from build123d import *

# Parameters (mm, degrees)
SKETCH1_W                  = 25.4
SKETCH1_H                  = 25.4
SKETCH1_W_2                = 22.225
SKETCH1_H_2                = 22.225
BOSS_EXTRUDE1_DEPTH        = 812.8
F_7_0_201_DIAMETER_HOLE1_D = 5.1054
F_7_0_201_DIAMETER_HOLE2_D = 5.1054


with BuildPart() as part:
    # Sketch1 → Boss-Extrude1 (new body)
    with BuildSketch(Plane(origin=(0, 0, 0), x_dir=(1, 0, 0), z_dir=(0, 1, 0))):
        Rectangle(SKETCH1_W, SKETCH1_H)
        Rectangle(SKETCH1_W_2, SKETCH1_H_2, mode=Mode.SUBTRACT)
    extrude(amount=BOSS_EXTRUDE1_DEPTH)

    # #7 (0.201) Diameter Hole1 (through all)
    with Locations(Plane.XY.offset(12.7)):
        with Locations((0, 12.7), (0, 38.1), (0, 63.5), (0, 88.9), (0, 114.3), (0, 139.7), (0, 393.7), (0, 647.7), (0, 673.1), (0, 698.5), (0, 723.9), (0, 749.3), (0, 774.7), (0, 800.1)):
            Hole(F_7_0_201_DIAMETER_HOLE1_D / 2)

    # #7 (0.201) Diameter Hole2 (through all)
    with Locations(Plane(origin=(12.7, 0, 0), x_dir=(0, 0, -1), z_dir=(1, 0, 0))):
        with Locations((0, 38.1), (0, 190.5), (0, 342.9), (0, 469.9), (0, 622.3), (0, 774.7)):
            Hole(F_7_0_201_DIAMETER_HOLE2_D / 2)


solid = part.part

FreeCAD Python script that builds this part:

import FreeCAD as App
import Part
import Sketcher
from FreeCAD import Vector
Q = App.Units.Quantity


def add_polygon(sketch, points):
    """Adds a closed chain of lines whose ends are joined by coincident constraints."""
    first, n = sketch.GeometryCount, len(points)
    for a, b in zip(points, points[1:] + points[:1]):
        sketch.addGeometry(Part.LineSegment(App.Vector(*a, 0), App.Vector(*b, 0)), False)
    for i in range(n):
        sketch.addConstraint(Sketcher.Constraint("Coincident", first + i, 2, first + (i + 1) % n, 1))

doc = App.newDocument("Part")
params = doc.addObject("Spreadsheet::Sheet", "Params")
for row, (alias, value) in enumerate([
    ("sketch1_width", "1 in"),
    ("sketch1_width2", "0.875 in"),
    ("pad1_length", "32 in"),
    ("sketch2_diameter", "0.201 in"),
    ("hole_diameter", "0.201 in"),
    ("sketch3_diameter", "0.201 in"),
    ("hole2_diameter", "0.201 in"),
], start=1):
    params.set(f"A{row}", alias)
    params.set(f"B{row}", "=" + value)
    params.setAlias(f"B{row}", alias)

body = doc.addObject("PartDesign::Body", "Body")

sketch1 = body.newObject("Sketcher::SketchObject", "Sketch")
sketch1.AttachmentSupport = (doc.getObject("XZ_Plane"), [""])
sketch1.MapMode = "FlatFace"
add_polygon(sketch1, [(-13, -13), (-13, 13), (13, 13), (13, -13)])
add_polygon(sketch1, [(11, 11), (-11, 11), (-11, -11), (11, -11)])
sketch1.addConstraint([
    Sketcher.Constraint("Vertical", 0),
    Sketcher.Constraint("Horizontal", 1),
    Sketcher.Constraint("Vertical", 2),
    Sketcher.Constraint("Horizontal", 3),
    Sketcher.Constraint("Horizontal", 4),
    Sketcher.Constraint("Vertical", 5),
    Sketcher.Constraint("Horizontal", 6),
    Sketcher.Constraint("Vertical", 7),
    Sketcher.Constraint("Symmetric", 0, 2, 2, 2, -1, 1),
    Sketcher.Constraint("Symmetric", 4, 2, 6, 2, -1, 1),
    Sketcher.Constraint("Equal", 3, 0),
    Sketcher.Constraint("Equal", 6, 5),
    Sketcher.Constraint("DistanceX", 1, 1, 1, 2, Q("1 in")),
    Sketcher.Constraint("DistanceX", 4, 2, 4, 1, Q("0.875 in")),
])
sketch1.setExpression("Constraints[20]", "Params.sketch1_width")
sketch1.setExpression("Constraints[21]", "Params.sketch1_width2")
pad1 = body.newObject("PartDesign::Pad", "Pad")
pad1.Profile = sketch1
pad1.setExpression("Length", "Params.pad1_length")
pad1.Reversed = True

sketch2 = body.newObject("Sketcher::SketchObject", "Sketch001")
sketch2.AttachmentSupport = (doc.getObject("XY_Plane"), [""])
sketch2.MapMode = "FlatFace"
sketch2.AttachmentOffset = App.Placement(Vector(0, 0, 0.5 * 25.4), App.Rotation())
sketch2.addGeometry([
    Part.Circle(Vector(0, 12.7, 0), Vector(0, 0, 1), 2.6),
    Part.Circle(Vector(0, 38.1, 0), Vector(0, 0, 1), 2.6),
    Part.Circle(Vector(0, 63.5, 0), Vector(0, 0, 1), 2.6),
    Part.Circle(Vector(0, 88.9, 0), Vector(0, 0, 1), 2.6),
    Part.Circle(Vector(0, 114.3, 0), Vector(0, 0, 1), 2.6),
    Part.Circle(Vector(0, 139.7, 0), Vector(0, 0, 1), 2.6),
    Part.Circle(Vector(0, 393.7, 0), Vector(0, 0, 1), 2.6),
    Part.Circle(Vector(0, 647.7, 0), Vector(0, 0, 1), 2.6),
    Part.Circle(Vector(0, 673.1, 0), Vector(0, 0, 1), 2.6),
    Part.Circle(Vector(0, 698.5, 0), Vector(0, 0, 1), 2.6),
    Part.Circle(Vector(0, 723.9, 0), Vector(0, 0, 1), 2.6),
    Part.Circle(Vector(0, 749.3, 0), Vector(0, 0, 1), 2.6),
    Part.Circle(Vector(0, 774.7, 0), Vector(0, 0, 1), 2.6),
    Part.Circle(Vector(0, 800.1, 0), Vector(0, 0, 1), 2.6),
], False)
sketch2.addConstraint([
    Sketcher.Constraint("Equal", 0, 1),
    Sketcher.Constraint("Equal", 1, 2),
    Sketcher.Constraint("Equal", 2, 3),
    Sketcher.Constraint("Equal", 3, 4),
    Sketcher.Constraint("Equal", 4, 5),
    Sketcher.Constraint("Equal", 5, 6),
    Sketcher.Constraint("Equal", 6, 7),
    Sketcher.Constraint("Equal", 7, 8),
    Sketcher.Constraint("Equal", 8, 9),
    Sketcher.Constraint("Equal", 9, 10),
    Sketcher.Constraint("Equal", 10, 11),
    Sketcher.Constraint("Equal", 11, 12),
    Sketcher.Constraint("Equal", 12, 13),
    Sketcher.Constraint("PointOnObject", 0, 3, -2),
    Sketcher.Constraint("PointOnObject", 1, 3, -2),
    Sketcher.Constraint("PointOnObject", 2, 3, -2),
    Sketcher.Constraint("PointOnObject", 3, 3, -2),
    Sketcher.Constraint("PointOnObject", 4, 3, -2),
    Sketcher.Constraint("PointOnObject", 5, 3, -2),
    Sketcher.Constraint("PointOnObject", 6, 3, -2),
    Sketcher.Constraint("PointOnObject", 7, 3, -2),
    Sketcher.Constraint("PointOnObject", 8, 3, -2),
    Sketcher.Constraint("PointOnObject", 9, 3, -2),
    Sketcher.Constraint("PointOnObject", 10, 3, -2),
    Sketcher.Constraint("PointOnObject", 11, 3, -2),
    Sketcher.Constraint("PointOnObject", 12, 3, -2),
    Sketcher.Constraint("PointOnObject", 13, 3, -2),
    Sketcher.Constraint("Diameter", 0, Q("0.201 in")),
    Sketcher.Constraint("DistanceY", 0, 3, 1, 3, Q("1 in")),
    Sketcher.Constraint("DistanceY", 1, 3, 2, 3, Q("1 in")),
    Sketcher.Constraint("DistanceY", 2, 3, 3, 3, Q("1 in")),
    Sketcher.Constraint("DistanceY", 3, 3, 4, 3, Q("1 in")),
    Sketcher.Constraint("DistanceY", 4, 3, 5, 3, Q("1 in")),
    Sketcher.Constraint("DistanceY", 5, 3, 6, 3, Q("10 in")),
    Sketcher.Constraint("DistanceY", 6, 3, 7, 3, Q("10 in")),
    Sketcher.Constraint("DistanceY", 7, 3, 8, 3, Q("1 in")),
    Sketcher.Constraint("DistanceY", 8, 3, 9, 3, Q("1 in")),
    Sketcher.Constraint("DistanceY", 9, 3, 10, 3, Q("1 in")),
    Sketcher.Constraint("DistanceY", 10, 3, 11, 3, Q("1 in")),
    Sketcher.Constraint("DistanceY", 11, 3, 12, 3, Q("1 in")),
    Sketcher.Constraint("DistanceY", 12, 3, 13, 3, Q("1 in")),
    Sketcher.Constraint("DistanceY", -1, 1, 0, 3, Q("0.5 in")),
])
sketch2.setExpression("Constraints[27]", "Params.sketch2_diameter")
doc.recompute()
hole = body.newObject("PartDesign::Hole", "Hole")
hole.Profile = sketch2
hole.ThreadType = "None"
hole.setExpression("Diameter", "Params.hole_diameter")
hole.DepthType = "ThroughAll"

sketch3 = body.newObject("Sketcher::SketchObject", "Sketch002")
sketch3.AttachmentSupport = (doc.getObject("YZ_Plane"), [""])
sketch3.MapMode = "FlatFace"
sketch3.AttachmentOffset = App.Placement(Vector(0, 0, 0.5 * 25.4), App.Rotation())
sketch3.addGeometry([
    Part.Circle(Vector(38.1, 0, 0), Vector(0, 0, 1), 2.6),
    Part.Circle(Vector(190.5, 0, 0), Vector(0, 0, 1), 2.6),
    Part.Circle(Vector(342.9, 0, 0), Vector(0, 0, 1), 2.6),
    Part.Circle(Vector(469.9, 0, 0), Vector(0, 0, 1), 2.6),
    Part.Circle(Vector(622.3, 0, 0), Vector(0, 0, 1), 2.6),
    Part.Circle(Vector(774.7, 0, 0), Vector(0, 0, 1), 2.6),
], False)
sketch3.addConstraint([
    Sketcher.Constraint("Equal", 0, 1),
    Sketcher.Constraint("Equal", 1, 2),
    Sketcher.Constraint("Equal", 2, 3),
    Sketcher.Constraint("Equal", 3, 4),
    Sketcher.Constraint("Equal", 4, 5),
    Sketcher.Constraint("PointOnObject", 0, 3, -1),
    Sketcher.Constraint("PointOnObject", 1, 3, -1),
    Sketcher.Constraint("PointOnObject", 2, 3, -1),
    Sketcher.Constraint("PointOnObject", 3, 3, -1),
    Sketcher.Constraint("PointOnObject", 4, 3, -1),
    Sketcher.Constraint("PointOnObject", 5, 3, -1),
    Sketcher.Constraint("Diameter", 0, Q("0.201 in")),
    Sketcher.Constraint("DistanceX", 0, 3, 1, 3, Q("6 in")),
    Sketcher.Constraint("DistanceX", 1, 3, 2, 3, Q("6 in")),
    Sketcher.Constraint("DistanceX", 2, 3, 3, 3, Q("5 in")),
    Sketcher.Constraint("DistanceX", 3, 3, 4, 3, Q("6 in")),
    Sketcher.Constraint("DistanceX", 4, 3, 5, 3, Q("6 in")),
    Sketcher.Constraint("DistanceX", -1, 1, 0, 3, Q("1.5 in")),
])
sketch3.setExpression("Constraints[11]", "Params.sketch3_diameter")
doc.recompute()
hole2 = body.newObject("PartDesign::Hole", "Hole001")
hole2.Profile = sketch3
hole2.ThreadType = "None"
hole2.setExpression("Diameter", "Params.hole2_diameter")
hole2.DepthType = "ThroughAll"

doc.recompute()
